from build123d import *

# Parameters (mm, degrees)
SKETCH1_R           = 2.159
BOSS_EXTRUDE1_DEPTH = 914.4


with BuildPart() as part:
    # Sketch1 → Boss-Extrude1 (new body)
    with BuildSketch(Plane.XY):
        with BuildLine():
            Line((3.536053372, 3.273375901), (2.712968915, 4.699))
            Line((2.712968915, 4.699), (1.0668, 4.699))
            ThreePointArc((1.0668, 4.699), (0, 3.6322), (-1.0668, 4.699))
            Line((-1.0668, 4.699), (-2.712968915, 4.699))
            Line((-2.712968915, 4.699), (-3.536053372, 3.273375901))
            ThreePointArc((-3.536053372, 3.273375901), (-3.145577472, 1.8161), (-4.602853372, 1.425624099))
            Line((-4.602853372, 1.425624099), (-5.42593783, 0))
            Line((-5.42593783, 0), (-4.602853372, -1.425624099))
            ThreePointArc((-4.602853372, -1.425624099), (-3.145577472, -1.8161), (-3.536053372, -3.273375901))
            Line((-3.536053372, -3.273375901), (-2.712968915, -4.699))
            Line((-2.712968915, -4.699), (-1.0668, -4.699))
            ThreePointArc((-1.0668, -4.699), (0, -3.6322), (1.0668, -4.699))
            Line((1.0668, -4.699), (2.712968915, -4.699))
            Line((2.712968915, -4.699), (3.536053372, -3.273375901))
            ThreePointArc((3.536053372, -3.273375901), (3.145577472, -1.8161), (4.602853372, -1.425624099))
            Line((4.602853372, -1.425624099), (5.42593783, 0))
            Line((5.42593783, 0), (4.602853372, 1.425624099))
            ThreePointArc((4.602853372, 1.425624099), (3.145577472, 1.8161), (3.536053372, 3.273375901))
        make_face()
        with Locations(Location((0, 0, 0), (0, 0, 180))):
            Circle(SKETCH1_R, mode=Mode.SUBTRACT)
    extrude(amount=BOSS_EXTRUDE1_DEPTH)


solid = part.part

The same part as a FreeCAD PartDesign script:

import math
import FreeCAD as App
import Part
import Sketcher
Q = App.Units.Quantity

doc = App.newDocument("Part")
body = doc.addObject("PartDesign::Body", "Body")

# Sketch on XY plane
sketch1 = doc.addObject("Sketcher::SketchObject", "Sketch")
body.addObject(sketch1)
sketch1.AttachmentSupport = (doc.XY_Plane, [""])
sketch1.MapMode = "FlatFace"
sketch1.addGeometry(Part.LineSegment(App.Vector(3.536053, 3.273376, 0), App.Vector(2.712969, 4.699, 0)), False)
sketch1.addGeometry(Part.LineSegment(App.Vector(2.712969, 4.699, 0), App.Vector(1.0668, 4.699, 0)), False)
sketch1.addGeometry(Part.ArcOfCircle(Part.Circle(App.Vector(0, 4.699, 0), App.Vector(0, 0, 1), 1.0668), math.radians(180), math.radians(360)), False)
sketch1.addGeometry(Part.LineSegment(App.Vector(-1.0668, 4.699, 0), App.Vector(-2.712969, 4.699, 0)), False)
sketch1.addGeometry(Part.LineSegment(App.Vector(-2.712969, 4.699, 0), App.Vector(-3.536053, 3.273376, 0)), False)
sketch1.addGeometry(Part.ArcOfCircle(Part.Circle(App.Vector(-4.069453, 2.3495, 0), App.Vector(0, 0, 1), 1.0668), math.radians(-120), math.radians(60)), False)
sketch1.addGeometry(Part.LineSegment(App.Vector(-4.602853, 1.425624, 0), App.Vector(-5.425938, 0, 0)), False)
sketch1.addGeometry(Part.LineSegment(App.Vector(-5.425938, 0, 0), App.Vector(-4.602853, -1.425624, 0)), False)
sketch1.addGeometry(Part.ArcOfCircle(Part.Circle(App.Vector(-4.069453, -2.3495, 0), App.Vector(0, 0, 1), 1.0668), math.radians(-60), math.radians(120)), False)
sketch1.addGeometry(Part.LineSegment(App.Vector(-3.536053, -3.273376, 0), App.Vector(-2.712969, -4.699, 0)), False)
sketch1.addGeometry(Part.LineSegment(App.Vector(-2.712969, -4.699, 0), App.Vector(-1.0668, -4.699, 0)), False)
sketch1.addGeometry(Part.ArcOfCircle(Part.Circle(App.Vector(0, -4.699, 0), App.Vector(0, 0, 1), 1.0668), math.radians(0), math.radians(180)), False)
sketch1.addGeometry(Part.LineSegment(App.Vector(1.0668, -4.699, 0), App.Vector(2.712969, -4.699, 0)), False)
sketch1.addGeometry(Part.LineSegment(App.Vector(2.712969, -4.699, 0), App.Vector(3.536053, -3.273376, 0)), False)
sketch1.addGeometry(Part.ArcOfCircle(Part.Circle(App.Vector(4.069453, -2.3495, 0), App.Vector(0, 0, 1), 1.0668), math.radians(60), math.radians(240)), False)
sketch1.addGeometry(Part.LineSegment(App.Vector(4.602853, -1.425624, 0), App.Vector(5.425938, 0, 0)), False)
sketch1.addGeometry(Part.LineSegment(App.Vector(5.425938, 0, 0), App.Vector(4.602853, 1.425624, 0)), False)
sketch1.addGeometry(Part.ArcOfCircle(Part.Circle(App.Vector(4.069453, 2.3495, 0), App.Vector(0, 0, 1), 1.0668), math.radians(120), math.radians(300)), False)
sketch1.addGeometry(Part.Circle(App.Vector(0, 0, 0), App.Vector(0, 0, 1), 2.159), False)
sketch1.addConstraint(Sketcher.Constraint("Coincident", 0, 2, 1, 1))
sketch1.addConstraint(Sketcher.Constraint("Coincident", 1, 2, 2, 2))
sketch1.addConstraint(Sketcher.Constraint("Coincident", 2, 1, 3, 1))
sketch1.addConstraint(Sketcher.Constraint("Coincident", 3, 2, 4, 1))
sketch1.addConstraint(Sketcher.Constraint("Coincident", 4, 2, 5, 2))
sketch1.addConstraint(Sketcher.Constraint("Coincident", 5, 1, 6, 1))
sketch1.addConstraint(Sketcher.Constraint("Coincident", 6, 2, 7, 1))
sketch1.addConstraint(Sketcher.Constraint("Coincident", 7, 2, 8, 2))
sketch1.addConstraint(Sketcher.Constraint("Coincident", 8, 1, 9, 1))
sketch1.addConstraint(Sketcher.Constraint("Coincident", 9, 2, 10, 1))
sketch1.addConstraint(Sketcher.Constraint("Coincident", 10, 2, 11, 2))
sketch1.addConstraint(Sketcher.Constraint("Coincident", 11, 1, 12, 1))
sketch1.addConstraint(Sketcher.Constraint("Coincident", 12, 2, 13, 1))
sketch1.addConstraint(Sketcher.Constraint("Coincident", 13, 2, 14, 2))
sketch1.addConstraint(Sketcher.Constraint("Coincident", 14, 1, 15, 1))
sketch1.addConstraint(Sketcher.Constraint("Coincident", 15, 2, 16, 1))
sketch1.addConstraint(Sketcher.Constraint("Coincident", 16, 2, 17, 2))
sketch1.addConstraint(Sketcher.Constraint("Coincident", 17, 1, 0, 1))
sketch1.addConstraint(Sketcher.Constraint("Horizontal", 1))
sketch1.addConstraint(Sketcher.Constraint("Horizontal", 3))
sketch1.addConstraint(Sketcher.Constraint("Horizontal", 10))
sketch1.addConstraint(Sketcher.Constraint("Horizontal", 12))
sketch1.addConstraint(Sketcher.Constraint("Coincident", 18, 3, -1, 1))
sketch1.addConstraint(Sketcher.Constraint("Equal", 2, 5))
sketch1.addConstraint(Sketcher.Constraint("Equal", 5, 8))
sketch1.addConstraint(Sketcher.Constraint("Equal", 8, 11))
sketch1.addConstraint(Sketcher.Constraint("Equal", 11, 14))
sketch1.addConstraint(Sketcher.Constraint("Equal", 14, 17))
sketch1.addConstraint(Sketcher.Constraint("Symmetric", 2, 3, 11, 3, -1, 1))
sketch1.addConstraint(Sketcher.Constraint("Symmetric", 5, 3, 14, 3, -1, 1))
sketch1.addConstraint(Sketcher.Constraint("Symmetric", 8, 3, 17, 3, -1, 1))
sketch1.addConstraint(Sketcher.Constraint("Symmetric", 0, 2, 9, 2, -1, 1))
sketch1.addConstraint(Sketcher.Constraint("Symmetric", 3, 2, 12, 2, -1, 1))
sketch1.addConstraint(Sketcher.Constraint("Symmetric", 6, 2, 15, 2, -1, 1))
sketch1.addConstraint(Sketcher.Constraint("Symmetric", 8, 3, 14, 3, -2))
sketch1.addConstraint(Sketcher.Constraint("Symmetric", 1, 2, 2, 1, -2))
sketch1.addConstraint(Sketcher.Constraint("PointOnObject", 6, 2, -1))
sketch1.addConstraint(Sketcher.Constraint("Parallel", 4, 6))
sketch1.addConstraint(Sketcher.Constraint("Parallel", 0, 7))
sketch1.addConstraint(Sketcher.Constraint("Parallel", 7, 9))
sketch1.addConstraint(Sketcher.Constraint("Parallel", 6, 13))
sketch1.addConstraint(Sketcher.Constraint("Parallel", 13, 15))
sketch1.addConstraint(Sketcher.Constraint("Parallel", 9, 16))
sketch1.addConstraint(Sketcher.Constraint("Horizontal", 2, 3, 0, 2))
sketch1.addConstraint(Sketcher.Constraint("Horizontal", 8, 1, 13, 2))
sketch1.addConstraint(Sketcher.Constraint("Horizontal", 7, 2, 14, 1))
sketch1.addConstraint(Sketcher.Constraint("Equal", 4, 6))
sketch1.addConstraint(Sketcher.Constraint("Diameter", 18, Q("0.17 in")))
sketch1.addConstraint(Sketcher.Constraint("Angle", 0, Q("120 deg")))
sketch1.addConstraint(Sketcher.Constraint("Radius", 2, Q("0.042 in")))
sketch1.addConstraint(Sketcher.Constraint("DistanceY", 11, 3, 2, 3, Q("0.37 in")))
sketch1.addConstraint(Sketcher.Constraint("DistanceY", 8, 3, 5, 3, Q("0.185 in")))
sketch1.addConstraint(Sketcher.Constraint("DistanceX", 5, 3, 4, 2, Q("0.021 in")))
sketch1.addConstraint(Sketcher.Constraint("DistanceX", 1, 2, 1, 1, 1.646169))
pad1 = doc.addObject("PartDesign::Pad", "Pad")
body.addObject(pad1)
pad1.Profile = sketch1
pad1.Length = Q("36 in")

doc.recompute()
